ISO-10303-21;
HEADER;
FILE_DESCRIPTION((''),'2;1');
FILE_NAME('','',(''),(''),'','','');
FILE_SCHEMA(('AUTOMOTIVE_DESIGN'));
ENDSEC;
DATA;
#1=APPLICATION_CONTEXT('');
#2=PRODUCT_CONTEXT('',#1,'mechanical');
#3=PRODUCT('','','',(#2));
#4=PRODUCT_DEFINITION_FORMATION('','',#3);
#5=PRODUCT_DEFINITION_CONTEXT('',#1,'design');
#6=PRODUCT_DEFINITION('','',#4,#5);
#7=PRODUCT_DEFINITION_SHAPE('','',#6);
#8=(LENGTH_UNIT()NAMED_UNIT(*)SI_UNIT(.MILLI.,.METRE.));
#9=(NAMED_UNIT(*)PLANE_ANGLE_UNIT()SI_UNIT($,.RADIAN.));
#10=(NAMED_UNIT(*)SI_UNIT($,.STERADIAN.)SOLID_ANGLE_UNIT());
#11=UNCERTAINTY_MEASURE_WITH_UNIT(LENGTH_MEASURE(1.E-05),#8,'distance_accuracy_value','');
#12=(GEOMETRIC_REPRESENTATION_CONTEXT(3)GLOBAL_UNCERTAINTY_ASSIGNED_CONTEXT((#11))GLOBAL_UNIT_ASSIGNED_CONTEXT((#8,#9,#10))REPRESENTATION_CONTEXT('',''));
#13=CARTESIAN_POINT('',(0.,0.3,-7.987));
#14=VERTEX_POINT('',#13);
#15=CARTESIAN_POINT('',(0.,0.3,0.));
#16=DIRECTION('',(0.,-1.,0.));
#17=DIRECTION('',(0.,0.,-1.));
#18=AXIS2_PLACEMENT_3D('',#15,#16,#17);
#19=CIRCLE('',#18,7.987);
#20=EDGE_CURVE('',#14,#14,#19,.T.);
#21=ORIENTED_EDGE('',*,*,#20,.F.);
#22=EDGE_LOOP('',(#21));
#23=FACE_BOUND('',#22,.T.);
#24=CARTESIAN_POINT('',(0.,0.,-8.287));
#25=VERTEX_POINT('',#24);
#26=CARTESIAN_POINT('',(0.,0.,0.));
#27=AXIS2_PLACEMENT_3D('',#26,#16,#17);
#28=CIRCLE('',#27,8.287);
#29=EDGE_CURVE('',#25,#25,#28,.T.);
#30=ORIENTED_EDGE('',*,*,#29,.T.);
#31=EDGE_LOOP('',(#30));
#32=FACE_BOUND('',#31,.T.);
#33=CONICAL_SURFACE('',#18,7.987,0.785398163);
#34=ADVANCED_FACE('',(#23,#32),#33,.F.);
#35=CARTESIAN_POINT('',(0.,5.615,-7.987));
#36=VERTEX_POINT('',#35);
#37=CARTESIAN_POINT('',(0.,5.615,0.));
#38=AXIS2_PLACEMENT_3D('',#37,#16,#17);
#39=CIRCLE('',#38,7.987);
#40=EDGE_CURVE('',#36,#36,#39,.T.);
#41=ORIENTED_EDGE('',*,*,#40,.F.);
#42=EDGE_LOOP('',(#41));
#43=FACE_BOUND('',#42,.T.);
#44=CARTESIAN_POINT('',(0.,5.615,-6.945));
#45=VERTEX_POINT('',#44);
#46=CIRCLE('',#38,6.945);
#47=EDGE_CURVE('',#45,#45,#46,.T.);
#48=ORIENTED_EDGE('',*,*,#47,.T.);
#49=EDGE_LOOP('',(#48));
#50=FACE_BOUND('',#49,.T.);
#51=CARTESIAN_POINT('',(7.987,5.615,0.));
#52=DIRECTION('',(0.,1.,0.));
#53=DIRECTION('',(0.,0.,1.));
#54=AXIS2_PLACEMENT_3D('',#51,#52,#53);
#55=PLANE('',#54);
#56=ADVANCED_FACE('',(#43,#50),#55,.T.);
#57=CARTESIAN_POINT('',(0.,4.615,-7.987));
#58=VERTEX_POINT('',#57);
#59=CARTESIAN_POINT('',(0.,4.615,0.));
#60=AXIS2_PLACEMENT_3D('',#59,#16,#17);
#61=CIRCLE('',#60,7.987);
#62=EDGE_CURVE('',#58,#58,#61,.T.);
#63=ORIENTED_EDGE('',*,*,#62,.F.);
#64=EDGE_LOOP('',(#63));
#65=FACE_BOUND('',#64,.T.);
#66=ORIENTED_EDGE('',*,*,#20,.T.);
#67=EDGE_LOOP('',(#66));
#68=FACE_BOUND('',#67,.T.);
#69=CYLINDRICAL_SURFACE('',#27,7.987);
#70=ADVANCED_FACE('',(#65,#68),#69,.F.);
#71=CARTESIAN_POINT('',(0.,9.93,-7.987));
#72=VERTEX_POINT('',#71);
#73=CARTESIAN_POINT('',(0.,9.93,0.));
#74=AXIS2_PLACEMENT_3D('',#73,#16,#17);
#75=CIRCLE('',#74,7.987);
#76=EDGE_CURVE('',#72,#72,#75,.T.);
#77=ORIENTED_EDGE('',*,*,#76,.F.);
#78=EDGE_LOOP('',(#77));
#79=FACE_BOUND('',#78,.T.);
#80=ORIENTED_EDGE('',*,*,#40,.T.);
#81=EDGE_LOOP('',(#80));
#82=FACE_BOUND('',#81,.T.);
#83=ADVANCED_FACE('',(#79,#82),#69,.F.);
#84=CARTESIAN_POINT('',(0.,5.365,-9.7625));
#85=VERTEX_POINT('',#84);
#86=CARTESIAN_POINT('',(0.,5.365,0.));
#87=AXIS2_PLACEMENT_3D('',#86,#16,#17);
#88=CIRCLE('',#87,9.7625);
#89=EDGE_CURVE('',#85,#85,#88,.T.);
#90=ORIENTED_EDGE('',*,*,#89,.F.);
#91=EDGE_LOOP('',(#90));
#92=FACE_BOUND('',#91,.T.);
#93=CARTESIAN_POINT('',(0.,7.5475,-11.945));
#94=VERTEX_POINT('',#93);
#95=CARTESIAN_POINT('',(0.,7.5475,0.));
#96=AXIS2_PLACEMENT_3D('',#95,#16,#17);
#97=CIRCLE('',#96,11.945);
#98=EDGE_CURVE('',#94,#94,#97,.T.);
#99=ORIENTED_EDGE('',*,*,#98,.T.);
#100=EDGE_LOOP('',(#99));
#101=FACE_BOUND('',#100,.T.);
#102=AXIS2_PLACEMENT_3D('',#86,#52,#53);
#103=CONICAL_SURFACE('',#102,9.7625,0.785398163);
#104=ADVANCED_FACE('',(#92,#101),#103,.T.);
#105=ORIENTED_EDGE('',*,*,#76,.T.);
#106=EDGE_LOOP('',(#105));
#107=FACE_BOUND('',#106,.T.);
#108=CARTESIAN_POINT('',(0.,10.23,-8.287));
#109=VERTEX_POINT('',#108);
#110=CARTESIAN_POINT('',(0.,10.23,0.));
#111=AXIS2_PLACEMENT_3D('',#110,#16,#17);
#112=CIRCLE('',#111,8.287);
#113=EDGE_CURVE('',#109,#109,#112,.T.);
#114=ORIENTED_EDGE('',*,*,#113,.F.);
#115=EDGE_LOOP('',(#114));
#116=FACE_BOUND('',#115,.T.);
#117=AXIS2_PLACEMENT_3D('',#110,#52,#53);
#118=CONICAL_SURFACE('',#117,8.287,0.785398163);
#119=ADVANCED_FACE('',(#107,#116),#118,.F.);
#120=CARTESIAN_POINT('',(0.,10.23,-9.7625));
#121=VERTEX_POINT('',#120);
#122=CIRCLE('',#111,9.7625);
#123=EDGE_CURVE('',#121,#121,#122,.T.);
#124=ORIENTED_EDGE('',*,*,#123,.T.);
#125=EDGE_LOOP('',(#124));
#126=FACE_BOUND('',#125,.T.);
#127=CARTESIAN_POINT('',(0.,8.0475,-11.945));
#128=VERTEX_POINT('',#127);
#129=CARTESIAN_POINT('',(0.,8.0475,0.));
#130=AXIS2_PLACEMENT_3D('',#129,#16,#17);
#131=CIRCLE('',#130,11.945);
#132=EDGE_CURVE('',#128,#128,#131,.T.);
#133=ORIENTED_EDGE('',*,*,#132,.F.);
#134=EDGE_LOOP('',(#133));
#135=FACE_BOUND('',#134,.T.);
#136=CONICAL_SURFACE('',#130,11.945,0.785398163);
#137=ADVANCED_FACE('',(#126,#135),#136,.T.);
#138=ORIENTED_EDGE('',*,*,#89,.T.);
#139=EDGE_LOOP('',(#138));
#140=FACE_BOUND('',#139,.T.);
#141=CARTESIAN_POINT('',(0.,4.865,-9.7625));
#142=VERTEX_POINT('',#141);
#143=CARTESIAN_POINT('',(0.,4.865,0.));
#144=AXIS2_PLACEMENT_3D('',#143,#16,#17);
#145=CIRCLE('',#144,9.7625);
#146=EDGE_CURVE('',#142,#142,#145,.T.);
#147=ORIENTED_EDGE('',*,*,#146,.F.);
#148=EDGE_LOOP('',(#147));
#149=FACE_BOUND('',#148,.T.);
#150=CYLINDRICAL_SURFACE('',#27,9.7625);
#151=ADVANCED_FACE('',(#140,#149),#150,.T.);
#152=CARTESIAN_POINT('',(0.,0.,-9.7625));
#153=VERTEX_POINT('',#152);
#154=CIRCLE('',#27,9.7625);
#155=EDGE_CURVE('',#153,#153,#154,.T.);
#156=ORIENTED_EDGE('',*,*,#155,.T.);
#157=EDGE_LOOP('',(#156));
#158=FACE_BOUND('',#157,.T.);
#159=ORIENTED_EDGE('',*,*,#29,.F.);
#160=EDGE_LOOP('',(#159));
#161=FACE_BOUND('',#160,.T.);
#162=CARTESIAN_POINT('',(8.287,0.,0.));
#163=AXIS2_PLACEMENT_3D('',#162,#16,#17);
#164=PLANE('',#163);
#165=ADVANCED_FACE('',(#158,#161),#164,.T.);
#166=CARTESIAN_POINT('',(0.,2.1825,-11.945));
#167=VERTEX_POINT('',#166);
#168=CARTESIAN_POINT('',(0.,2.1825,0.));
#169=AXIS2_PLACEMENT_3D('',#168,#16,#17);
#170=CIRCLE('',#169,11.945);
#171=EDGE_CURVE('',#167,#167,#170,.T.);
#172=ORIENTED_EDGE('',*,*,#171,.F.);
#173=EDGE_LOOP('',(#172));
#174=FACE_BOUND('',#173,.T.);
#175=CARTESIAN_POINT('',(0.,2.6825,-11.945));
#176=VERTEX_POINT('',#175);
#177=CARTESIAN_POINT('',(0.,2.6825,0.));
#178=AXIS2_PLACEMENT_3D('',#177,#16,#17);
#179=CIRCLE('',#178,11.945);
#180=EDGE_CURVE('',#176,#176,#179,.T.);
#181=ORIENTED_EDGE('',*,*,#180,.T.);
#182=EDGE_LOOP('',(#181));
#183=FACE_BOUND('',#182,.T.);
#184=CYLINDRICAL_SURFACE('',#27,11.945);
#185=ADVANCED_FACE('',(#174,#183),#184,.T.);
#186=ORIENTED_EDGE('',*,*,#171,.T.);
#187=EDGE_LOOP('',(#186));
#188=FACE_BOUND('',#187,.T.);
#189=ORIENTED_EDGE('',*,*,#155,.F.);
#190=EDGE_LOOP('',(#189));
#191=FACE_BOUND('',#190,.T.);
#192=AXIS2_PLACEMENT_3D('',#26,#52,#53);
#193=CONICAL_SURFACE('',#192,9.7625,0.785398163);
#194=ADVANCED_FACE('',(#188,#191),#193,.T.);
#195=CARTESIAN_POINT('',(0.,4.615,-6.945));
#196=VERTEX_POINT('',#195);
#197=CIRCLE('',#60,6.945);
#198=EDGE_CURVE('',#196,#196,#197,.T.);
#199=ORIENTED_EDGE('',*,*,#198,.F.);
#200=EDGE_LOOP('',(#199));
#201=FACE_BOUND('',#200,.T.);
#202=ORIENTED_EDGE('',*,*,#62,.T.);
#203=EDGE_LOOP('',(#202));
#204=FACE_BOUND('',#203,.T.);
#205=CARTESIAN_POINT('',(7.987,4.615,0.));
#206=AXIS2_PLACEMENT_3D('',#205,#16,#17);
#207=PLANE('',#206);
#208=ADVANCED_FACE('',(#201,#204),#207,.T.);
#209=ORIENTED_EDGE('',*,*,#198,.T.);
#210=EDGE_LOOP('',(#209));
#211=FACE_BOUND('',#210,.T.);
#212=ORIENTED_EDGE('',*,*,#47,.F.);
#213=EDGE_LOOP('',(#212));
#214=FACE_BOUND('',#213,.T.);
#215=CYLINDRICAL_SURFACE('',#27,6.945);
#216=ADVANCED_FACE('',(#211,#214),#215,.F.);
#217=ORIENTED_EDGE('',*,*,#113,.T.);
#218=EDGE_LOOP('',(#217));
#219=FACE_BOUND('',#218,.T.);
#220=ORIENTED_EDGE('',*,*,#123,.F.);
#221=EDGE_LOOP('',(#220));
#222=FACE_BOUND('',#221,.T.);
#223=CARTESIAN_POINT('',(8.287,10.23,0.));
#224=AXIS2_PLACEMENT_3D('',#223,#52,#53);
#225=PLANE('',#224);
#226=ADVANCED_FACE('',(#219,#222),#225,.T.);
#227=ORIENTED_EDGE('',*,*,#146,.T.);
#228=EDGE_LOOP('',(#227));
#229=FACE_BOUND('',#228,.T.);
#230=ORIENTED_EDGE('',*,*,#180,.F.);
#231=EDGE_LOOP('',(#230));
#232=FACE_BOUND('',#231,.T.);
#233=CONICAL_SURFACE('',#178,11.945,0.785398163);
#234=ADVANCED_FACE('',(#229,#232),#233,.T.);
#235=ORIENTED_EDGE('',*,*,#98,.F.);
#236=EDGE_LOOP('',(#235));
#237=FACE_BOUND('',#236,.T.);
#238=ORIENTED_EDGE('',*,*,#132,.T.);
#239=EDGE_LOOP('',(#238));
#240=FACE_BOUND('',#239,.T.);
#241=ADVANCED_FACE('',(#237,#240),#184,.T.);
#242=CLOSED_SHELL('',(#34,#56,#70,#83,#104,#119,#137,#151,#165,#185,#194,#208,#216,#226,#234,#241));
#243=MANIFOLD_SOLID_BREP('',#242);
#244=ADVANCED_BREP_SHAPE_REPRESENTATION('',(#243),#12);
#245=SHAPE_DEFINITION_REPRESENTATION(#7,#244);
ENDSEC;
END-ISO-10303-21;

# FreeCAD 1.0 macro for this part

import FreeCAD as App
import Part
import Sketcher
Q = App.Units.Quantity

doc = App.newDocument("Part")
params = doc.addObject("Spreadsheet::Sheet", "Params")
for row, (alias, value) in enumerate([
    ("sketch1_height", "1 mm"),
    ("sketch1_height2", "0.5 mm"),
    ("revolution_angle", "360 deg"),
], start=1):
    params.set(f"A{row}", alias)
    params.set(f"B{row}", "=" + value)
    params.setAlias(f"B{row}", alias)

body = doc.addObject("PartDesign::Body", "Body")

sketch1 = body.newObject("Sketcher::SketchObject", "Sketch")
sketch1.AttachmentSupport = (doc.getObject("XY_Plane"), [""])
sketch1.MapMode = "FlatFace"
sketch1.addGeometry([
    Part.LineSegment(App.Vector(7.99, 9.93, 0), App.Vector(7.99, 5.62, 0)),
    Part.LineSegment(App.Vector(7.99, 5.62, 0), App.Vector(6.95, 5.62, 0)),
    Part.LineSegment(App.Vector(6.95, 5.62, 0), App.Vector(6.95, 4.62, 0)),
    Part.LineSegment(App.Vector(6.95, 4.62, 0), App.Vector(7.99, 4.62, 0)),
    Part.LineSegment(App.Vector(7.99, 4.62, 0), App.Vector(7.99, 0.3, 0)),
    Part.LineSegment(App.Vector(7.99, 0.3, 0), App.Vector(8.29, 0, 0)),
    Part.LineSegment(App.Vector(8.29, 0, 0), App.Vector(9.76, 0, 0)),
    Part.LineSegment(App.Vector(9.76, 0, 0), App.Vector(11.95, 2.18, 0)),
    Part.LineSegment(App.Vector(11.95, 2.18, 0), App.Vector(11.95, 2.68, 0)),
    Part.LineSegment(App.Vector(11.95, 2.68, 0), App.Vector(9.76, 4.87, 0)),
    Part.LineSegment(App.Vector(9.76, 4.87, 0), App.Vector(9.76, 5.37, 0)),
    Part.LineSegment(App.Vector(9.76, 5.37, 0), App.Vector(11.95, 7.55, 0)),
    Part.LineSegment(App.Vector(11.95, 7.55, 0), App.Vector(11.95, 8.05, 0)),
    Part.LineSegment(App.Vector(11.95, 8.05, 0), App.Vector(9.76, 10.23, 0)),
    Part.LineSegment(App.Vector(9.76, 10.23, 0), App.Vector(8.29, 10.23, 0)),
    Part.LineSegment(App.Vector(8.29, 10.23, 0), App.Vector(7.99, 9.93, 0)),
], False)
sketch1.addConstraint([
    Sketcher.Constraint("Coincident", 0, 2, 1, 1),
    Sketcher.Constraint("Coincident", 1, 2, 2, 1),
    Sketcher.Constraint("Coincident", 2, 2, 3, 1),
    Sketcher.Constraint("Coincident", 3, 2, 4, 1),
    Sketcher.Constraint("Coincident", 4, 2, 5, 1),
    Sketcher.Constraint("Coincident", 5, 2, 6, 1),
    Sketcher.Constraint("Coincident", 6, 2, 7, 1),
    Sketcher.Constraint("Coincident", 7, 2, 8, 1),
    Sketcher.Constraint("Coincident", 8, 2, 9, 1),
    Sketcher.Constraint("Coincident", 9, 2, 10, 1),
    Sketcher.Constraint("Coincident", 10, 2, 11, 1),
    Sketcher.Constraint("Coincident", 11, 2, 12, 1),
    Sketcher.Constraint("Coincident", 12, 2, 13, 1),
    Sketcher.Constraint("Coincident", 13, 2, 14, 1),
    Sketcher.Constraint("Coincident", 14, 2, 15, 1),
    Sketcher.Constraint("Coincident", 15, 2, 0, 1),
    Sketcher.Constraint("Vertical", 0),
    Sketcher.Constraint("Horizontal", 1),
    Sketcher.Constraint("Vertical", 2),
    Sketcher.Constraint("Horizontal", 3),
    Sketcher.Constraint("Vertical", 4),
    Sketcher.Constraint("Horizontal", 6),
    Sketcher.Constraint("Vertical", 8),
    Sketcher.Constraint("Vertical", 10),
    Sketcher.Constraint("Vertical", 12),
    Sketcher.Constraint("Horizontal", 14),
    Sketcher.Constraint("PointOnObject", 5, 2, -1),
    Sketcher.Constraint("Perpendicular", 5, 7),
    Sketcher.Constraint("Perpendicular", 7, 9),
    Sketcher.Constraint("Perpendicular", 9, 11),
    Sketcher.Constraint("Perpendicular", 11, 13),
    Sketcher.Constraint("Perpendicular", 13, 15),
    Sketcher.Constraint("Vertical", 0, 2, 3, 2),
    Sketcher.Constraint("Vertical", 6, 2, 9, 2),
    Sketcher.Constraint("Vertical", 8, 2, 11, 2),
    Sketcher.Constraint("Vertical", 10, 2, 13, 2),
    Sketcher.Constraint("Vertical", 5, 2, 14, 2),
    Sketcher.Constraint("Equal", 0, 4),
    Sketcher.Constraint("Equal", 8, 10),
    Sketcher.Constraint("Equal", 10, 12),
    Sketcher.Constraint("Equal", 7, 9),
    Sketcher.Constraint("DistanceY", 2, 2, 2, 1, Q("1 mm")),
    Sketcher.Constraint("DistanceY", 8, 1, 8, 2, Q("0.5 mm")),
    Sketcher.Constraint("DistanceY", -1, 1, 4, 2, Q("0.3 mm")),
    Sketcher.Constraint("DistanceX", 1, 2, 1, 1, Q("1.042 mm")),
    Sketcher.Constraint("DistanceY", 0, 2, 0, 1, Q("4.315 mm")),
    Sketcher.Constraint("DistanceX", 6, 1, 6, 2, Q("1.4755 mm")),
    Sketcher.Constraint("DistanceX", -1, 1, 0, 2, Q("7.987 mm")),
])
sketch1.setExpression("Constraints[41]", "Params.sketch1_height")
sketch1.setExpression("Constraints[42]", "Params.sketch1_height2")
revolution = body.newObject("PartDesign::Revolution", "Revolution")
revolution.Profile = sketch1
revolution.ReferenceAxis = (sketch1, ["V_Axis"])
revolution.setExpression("Angle", "Params.revolution_angle")

doc.recompute()
